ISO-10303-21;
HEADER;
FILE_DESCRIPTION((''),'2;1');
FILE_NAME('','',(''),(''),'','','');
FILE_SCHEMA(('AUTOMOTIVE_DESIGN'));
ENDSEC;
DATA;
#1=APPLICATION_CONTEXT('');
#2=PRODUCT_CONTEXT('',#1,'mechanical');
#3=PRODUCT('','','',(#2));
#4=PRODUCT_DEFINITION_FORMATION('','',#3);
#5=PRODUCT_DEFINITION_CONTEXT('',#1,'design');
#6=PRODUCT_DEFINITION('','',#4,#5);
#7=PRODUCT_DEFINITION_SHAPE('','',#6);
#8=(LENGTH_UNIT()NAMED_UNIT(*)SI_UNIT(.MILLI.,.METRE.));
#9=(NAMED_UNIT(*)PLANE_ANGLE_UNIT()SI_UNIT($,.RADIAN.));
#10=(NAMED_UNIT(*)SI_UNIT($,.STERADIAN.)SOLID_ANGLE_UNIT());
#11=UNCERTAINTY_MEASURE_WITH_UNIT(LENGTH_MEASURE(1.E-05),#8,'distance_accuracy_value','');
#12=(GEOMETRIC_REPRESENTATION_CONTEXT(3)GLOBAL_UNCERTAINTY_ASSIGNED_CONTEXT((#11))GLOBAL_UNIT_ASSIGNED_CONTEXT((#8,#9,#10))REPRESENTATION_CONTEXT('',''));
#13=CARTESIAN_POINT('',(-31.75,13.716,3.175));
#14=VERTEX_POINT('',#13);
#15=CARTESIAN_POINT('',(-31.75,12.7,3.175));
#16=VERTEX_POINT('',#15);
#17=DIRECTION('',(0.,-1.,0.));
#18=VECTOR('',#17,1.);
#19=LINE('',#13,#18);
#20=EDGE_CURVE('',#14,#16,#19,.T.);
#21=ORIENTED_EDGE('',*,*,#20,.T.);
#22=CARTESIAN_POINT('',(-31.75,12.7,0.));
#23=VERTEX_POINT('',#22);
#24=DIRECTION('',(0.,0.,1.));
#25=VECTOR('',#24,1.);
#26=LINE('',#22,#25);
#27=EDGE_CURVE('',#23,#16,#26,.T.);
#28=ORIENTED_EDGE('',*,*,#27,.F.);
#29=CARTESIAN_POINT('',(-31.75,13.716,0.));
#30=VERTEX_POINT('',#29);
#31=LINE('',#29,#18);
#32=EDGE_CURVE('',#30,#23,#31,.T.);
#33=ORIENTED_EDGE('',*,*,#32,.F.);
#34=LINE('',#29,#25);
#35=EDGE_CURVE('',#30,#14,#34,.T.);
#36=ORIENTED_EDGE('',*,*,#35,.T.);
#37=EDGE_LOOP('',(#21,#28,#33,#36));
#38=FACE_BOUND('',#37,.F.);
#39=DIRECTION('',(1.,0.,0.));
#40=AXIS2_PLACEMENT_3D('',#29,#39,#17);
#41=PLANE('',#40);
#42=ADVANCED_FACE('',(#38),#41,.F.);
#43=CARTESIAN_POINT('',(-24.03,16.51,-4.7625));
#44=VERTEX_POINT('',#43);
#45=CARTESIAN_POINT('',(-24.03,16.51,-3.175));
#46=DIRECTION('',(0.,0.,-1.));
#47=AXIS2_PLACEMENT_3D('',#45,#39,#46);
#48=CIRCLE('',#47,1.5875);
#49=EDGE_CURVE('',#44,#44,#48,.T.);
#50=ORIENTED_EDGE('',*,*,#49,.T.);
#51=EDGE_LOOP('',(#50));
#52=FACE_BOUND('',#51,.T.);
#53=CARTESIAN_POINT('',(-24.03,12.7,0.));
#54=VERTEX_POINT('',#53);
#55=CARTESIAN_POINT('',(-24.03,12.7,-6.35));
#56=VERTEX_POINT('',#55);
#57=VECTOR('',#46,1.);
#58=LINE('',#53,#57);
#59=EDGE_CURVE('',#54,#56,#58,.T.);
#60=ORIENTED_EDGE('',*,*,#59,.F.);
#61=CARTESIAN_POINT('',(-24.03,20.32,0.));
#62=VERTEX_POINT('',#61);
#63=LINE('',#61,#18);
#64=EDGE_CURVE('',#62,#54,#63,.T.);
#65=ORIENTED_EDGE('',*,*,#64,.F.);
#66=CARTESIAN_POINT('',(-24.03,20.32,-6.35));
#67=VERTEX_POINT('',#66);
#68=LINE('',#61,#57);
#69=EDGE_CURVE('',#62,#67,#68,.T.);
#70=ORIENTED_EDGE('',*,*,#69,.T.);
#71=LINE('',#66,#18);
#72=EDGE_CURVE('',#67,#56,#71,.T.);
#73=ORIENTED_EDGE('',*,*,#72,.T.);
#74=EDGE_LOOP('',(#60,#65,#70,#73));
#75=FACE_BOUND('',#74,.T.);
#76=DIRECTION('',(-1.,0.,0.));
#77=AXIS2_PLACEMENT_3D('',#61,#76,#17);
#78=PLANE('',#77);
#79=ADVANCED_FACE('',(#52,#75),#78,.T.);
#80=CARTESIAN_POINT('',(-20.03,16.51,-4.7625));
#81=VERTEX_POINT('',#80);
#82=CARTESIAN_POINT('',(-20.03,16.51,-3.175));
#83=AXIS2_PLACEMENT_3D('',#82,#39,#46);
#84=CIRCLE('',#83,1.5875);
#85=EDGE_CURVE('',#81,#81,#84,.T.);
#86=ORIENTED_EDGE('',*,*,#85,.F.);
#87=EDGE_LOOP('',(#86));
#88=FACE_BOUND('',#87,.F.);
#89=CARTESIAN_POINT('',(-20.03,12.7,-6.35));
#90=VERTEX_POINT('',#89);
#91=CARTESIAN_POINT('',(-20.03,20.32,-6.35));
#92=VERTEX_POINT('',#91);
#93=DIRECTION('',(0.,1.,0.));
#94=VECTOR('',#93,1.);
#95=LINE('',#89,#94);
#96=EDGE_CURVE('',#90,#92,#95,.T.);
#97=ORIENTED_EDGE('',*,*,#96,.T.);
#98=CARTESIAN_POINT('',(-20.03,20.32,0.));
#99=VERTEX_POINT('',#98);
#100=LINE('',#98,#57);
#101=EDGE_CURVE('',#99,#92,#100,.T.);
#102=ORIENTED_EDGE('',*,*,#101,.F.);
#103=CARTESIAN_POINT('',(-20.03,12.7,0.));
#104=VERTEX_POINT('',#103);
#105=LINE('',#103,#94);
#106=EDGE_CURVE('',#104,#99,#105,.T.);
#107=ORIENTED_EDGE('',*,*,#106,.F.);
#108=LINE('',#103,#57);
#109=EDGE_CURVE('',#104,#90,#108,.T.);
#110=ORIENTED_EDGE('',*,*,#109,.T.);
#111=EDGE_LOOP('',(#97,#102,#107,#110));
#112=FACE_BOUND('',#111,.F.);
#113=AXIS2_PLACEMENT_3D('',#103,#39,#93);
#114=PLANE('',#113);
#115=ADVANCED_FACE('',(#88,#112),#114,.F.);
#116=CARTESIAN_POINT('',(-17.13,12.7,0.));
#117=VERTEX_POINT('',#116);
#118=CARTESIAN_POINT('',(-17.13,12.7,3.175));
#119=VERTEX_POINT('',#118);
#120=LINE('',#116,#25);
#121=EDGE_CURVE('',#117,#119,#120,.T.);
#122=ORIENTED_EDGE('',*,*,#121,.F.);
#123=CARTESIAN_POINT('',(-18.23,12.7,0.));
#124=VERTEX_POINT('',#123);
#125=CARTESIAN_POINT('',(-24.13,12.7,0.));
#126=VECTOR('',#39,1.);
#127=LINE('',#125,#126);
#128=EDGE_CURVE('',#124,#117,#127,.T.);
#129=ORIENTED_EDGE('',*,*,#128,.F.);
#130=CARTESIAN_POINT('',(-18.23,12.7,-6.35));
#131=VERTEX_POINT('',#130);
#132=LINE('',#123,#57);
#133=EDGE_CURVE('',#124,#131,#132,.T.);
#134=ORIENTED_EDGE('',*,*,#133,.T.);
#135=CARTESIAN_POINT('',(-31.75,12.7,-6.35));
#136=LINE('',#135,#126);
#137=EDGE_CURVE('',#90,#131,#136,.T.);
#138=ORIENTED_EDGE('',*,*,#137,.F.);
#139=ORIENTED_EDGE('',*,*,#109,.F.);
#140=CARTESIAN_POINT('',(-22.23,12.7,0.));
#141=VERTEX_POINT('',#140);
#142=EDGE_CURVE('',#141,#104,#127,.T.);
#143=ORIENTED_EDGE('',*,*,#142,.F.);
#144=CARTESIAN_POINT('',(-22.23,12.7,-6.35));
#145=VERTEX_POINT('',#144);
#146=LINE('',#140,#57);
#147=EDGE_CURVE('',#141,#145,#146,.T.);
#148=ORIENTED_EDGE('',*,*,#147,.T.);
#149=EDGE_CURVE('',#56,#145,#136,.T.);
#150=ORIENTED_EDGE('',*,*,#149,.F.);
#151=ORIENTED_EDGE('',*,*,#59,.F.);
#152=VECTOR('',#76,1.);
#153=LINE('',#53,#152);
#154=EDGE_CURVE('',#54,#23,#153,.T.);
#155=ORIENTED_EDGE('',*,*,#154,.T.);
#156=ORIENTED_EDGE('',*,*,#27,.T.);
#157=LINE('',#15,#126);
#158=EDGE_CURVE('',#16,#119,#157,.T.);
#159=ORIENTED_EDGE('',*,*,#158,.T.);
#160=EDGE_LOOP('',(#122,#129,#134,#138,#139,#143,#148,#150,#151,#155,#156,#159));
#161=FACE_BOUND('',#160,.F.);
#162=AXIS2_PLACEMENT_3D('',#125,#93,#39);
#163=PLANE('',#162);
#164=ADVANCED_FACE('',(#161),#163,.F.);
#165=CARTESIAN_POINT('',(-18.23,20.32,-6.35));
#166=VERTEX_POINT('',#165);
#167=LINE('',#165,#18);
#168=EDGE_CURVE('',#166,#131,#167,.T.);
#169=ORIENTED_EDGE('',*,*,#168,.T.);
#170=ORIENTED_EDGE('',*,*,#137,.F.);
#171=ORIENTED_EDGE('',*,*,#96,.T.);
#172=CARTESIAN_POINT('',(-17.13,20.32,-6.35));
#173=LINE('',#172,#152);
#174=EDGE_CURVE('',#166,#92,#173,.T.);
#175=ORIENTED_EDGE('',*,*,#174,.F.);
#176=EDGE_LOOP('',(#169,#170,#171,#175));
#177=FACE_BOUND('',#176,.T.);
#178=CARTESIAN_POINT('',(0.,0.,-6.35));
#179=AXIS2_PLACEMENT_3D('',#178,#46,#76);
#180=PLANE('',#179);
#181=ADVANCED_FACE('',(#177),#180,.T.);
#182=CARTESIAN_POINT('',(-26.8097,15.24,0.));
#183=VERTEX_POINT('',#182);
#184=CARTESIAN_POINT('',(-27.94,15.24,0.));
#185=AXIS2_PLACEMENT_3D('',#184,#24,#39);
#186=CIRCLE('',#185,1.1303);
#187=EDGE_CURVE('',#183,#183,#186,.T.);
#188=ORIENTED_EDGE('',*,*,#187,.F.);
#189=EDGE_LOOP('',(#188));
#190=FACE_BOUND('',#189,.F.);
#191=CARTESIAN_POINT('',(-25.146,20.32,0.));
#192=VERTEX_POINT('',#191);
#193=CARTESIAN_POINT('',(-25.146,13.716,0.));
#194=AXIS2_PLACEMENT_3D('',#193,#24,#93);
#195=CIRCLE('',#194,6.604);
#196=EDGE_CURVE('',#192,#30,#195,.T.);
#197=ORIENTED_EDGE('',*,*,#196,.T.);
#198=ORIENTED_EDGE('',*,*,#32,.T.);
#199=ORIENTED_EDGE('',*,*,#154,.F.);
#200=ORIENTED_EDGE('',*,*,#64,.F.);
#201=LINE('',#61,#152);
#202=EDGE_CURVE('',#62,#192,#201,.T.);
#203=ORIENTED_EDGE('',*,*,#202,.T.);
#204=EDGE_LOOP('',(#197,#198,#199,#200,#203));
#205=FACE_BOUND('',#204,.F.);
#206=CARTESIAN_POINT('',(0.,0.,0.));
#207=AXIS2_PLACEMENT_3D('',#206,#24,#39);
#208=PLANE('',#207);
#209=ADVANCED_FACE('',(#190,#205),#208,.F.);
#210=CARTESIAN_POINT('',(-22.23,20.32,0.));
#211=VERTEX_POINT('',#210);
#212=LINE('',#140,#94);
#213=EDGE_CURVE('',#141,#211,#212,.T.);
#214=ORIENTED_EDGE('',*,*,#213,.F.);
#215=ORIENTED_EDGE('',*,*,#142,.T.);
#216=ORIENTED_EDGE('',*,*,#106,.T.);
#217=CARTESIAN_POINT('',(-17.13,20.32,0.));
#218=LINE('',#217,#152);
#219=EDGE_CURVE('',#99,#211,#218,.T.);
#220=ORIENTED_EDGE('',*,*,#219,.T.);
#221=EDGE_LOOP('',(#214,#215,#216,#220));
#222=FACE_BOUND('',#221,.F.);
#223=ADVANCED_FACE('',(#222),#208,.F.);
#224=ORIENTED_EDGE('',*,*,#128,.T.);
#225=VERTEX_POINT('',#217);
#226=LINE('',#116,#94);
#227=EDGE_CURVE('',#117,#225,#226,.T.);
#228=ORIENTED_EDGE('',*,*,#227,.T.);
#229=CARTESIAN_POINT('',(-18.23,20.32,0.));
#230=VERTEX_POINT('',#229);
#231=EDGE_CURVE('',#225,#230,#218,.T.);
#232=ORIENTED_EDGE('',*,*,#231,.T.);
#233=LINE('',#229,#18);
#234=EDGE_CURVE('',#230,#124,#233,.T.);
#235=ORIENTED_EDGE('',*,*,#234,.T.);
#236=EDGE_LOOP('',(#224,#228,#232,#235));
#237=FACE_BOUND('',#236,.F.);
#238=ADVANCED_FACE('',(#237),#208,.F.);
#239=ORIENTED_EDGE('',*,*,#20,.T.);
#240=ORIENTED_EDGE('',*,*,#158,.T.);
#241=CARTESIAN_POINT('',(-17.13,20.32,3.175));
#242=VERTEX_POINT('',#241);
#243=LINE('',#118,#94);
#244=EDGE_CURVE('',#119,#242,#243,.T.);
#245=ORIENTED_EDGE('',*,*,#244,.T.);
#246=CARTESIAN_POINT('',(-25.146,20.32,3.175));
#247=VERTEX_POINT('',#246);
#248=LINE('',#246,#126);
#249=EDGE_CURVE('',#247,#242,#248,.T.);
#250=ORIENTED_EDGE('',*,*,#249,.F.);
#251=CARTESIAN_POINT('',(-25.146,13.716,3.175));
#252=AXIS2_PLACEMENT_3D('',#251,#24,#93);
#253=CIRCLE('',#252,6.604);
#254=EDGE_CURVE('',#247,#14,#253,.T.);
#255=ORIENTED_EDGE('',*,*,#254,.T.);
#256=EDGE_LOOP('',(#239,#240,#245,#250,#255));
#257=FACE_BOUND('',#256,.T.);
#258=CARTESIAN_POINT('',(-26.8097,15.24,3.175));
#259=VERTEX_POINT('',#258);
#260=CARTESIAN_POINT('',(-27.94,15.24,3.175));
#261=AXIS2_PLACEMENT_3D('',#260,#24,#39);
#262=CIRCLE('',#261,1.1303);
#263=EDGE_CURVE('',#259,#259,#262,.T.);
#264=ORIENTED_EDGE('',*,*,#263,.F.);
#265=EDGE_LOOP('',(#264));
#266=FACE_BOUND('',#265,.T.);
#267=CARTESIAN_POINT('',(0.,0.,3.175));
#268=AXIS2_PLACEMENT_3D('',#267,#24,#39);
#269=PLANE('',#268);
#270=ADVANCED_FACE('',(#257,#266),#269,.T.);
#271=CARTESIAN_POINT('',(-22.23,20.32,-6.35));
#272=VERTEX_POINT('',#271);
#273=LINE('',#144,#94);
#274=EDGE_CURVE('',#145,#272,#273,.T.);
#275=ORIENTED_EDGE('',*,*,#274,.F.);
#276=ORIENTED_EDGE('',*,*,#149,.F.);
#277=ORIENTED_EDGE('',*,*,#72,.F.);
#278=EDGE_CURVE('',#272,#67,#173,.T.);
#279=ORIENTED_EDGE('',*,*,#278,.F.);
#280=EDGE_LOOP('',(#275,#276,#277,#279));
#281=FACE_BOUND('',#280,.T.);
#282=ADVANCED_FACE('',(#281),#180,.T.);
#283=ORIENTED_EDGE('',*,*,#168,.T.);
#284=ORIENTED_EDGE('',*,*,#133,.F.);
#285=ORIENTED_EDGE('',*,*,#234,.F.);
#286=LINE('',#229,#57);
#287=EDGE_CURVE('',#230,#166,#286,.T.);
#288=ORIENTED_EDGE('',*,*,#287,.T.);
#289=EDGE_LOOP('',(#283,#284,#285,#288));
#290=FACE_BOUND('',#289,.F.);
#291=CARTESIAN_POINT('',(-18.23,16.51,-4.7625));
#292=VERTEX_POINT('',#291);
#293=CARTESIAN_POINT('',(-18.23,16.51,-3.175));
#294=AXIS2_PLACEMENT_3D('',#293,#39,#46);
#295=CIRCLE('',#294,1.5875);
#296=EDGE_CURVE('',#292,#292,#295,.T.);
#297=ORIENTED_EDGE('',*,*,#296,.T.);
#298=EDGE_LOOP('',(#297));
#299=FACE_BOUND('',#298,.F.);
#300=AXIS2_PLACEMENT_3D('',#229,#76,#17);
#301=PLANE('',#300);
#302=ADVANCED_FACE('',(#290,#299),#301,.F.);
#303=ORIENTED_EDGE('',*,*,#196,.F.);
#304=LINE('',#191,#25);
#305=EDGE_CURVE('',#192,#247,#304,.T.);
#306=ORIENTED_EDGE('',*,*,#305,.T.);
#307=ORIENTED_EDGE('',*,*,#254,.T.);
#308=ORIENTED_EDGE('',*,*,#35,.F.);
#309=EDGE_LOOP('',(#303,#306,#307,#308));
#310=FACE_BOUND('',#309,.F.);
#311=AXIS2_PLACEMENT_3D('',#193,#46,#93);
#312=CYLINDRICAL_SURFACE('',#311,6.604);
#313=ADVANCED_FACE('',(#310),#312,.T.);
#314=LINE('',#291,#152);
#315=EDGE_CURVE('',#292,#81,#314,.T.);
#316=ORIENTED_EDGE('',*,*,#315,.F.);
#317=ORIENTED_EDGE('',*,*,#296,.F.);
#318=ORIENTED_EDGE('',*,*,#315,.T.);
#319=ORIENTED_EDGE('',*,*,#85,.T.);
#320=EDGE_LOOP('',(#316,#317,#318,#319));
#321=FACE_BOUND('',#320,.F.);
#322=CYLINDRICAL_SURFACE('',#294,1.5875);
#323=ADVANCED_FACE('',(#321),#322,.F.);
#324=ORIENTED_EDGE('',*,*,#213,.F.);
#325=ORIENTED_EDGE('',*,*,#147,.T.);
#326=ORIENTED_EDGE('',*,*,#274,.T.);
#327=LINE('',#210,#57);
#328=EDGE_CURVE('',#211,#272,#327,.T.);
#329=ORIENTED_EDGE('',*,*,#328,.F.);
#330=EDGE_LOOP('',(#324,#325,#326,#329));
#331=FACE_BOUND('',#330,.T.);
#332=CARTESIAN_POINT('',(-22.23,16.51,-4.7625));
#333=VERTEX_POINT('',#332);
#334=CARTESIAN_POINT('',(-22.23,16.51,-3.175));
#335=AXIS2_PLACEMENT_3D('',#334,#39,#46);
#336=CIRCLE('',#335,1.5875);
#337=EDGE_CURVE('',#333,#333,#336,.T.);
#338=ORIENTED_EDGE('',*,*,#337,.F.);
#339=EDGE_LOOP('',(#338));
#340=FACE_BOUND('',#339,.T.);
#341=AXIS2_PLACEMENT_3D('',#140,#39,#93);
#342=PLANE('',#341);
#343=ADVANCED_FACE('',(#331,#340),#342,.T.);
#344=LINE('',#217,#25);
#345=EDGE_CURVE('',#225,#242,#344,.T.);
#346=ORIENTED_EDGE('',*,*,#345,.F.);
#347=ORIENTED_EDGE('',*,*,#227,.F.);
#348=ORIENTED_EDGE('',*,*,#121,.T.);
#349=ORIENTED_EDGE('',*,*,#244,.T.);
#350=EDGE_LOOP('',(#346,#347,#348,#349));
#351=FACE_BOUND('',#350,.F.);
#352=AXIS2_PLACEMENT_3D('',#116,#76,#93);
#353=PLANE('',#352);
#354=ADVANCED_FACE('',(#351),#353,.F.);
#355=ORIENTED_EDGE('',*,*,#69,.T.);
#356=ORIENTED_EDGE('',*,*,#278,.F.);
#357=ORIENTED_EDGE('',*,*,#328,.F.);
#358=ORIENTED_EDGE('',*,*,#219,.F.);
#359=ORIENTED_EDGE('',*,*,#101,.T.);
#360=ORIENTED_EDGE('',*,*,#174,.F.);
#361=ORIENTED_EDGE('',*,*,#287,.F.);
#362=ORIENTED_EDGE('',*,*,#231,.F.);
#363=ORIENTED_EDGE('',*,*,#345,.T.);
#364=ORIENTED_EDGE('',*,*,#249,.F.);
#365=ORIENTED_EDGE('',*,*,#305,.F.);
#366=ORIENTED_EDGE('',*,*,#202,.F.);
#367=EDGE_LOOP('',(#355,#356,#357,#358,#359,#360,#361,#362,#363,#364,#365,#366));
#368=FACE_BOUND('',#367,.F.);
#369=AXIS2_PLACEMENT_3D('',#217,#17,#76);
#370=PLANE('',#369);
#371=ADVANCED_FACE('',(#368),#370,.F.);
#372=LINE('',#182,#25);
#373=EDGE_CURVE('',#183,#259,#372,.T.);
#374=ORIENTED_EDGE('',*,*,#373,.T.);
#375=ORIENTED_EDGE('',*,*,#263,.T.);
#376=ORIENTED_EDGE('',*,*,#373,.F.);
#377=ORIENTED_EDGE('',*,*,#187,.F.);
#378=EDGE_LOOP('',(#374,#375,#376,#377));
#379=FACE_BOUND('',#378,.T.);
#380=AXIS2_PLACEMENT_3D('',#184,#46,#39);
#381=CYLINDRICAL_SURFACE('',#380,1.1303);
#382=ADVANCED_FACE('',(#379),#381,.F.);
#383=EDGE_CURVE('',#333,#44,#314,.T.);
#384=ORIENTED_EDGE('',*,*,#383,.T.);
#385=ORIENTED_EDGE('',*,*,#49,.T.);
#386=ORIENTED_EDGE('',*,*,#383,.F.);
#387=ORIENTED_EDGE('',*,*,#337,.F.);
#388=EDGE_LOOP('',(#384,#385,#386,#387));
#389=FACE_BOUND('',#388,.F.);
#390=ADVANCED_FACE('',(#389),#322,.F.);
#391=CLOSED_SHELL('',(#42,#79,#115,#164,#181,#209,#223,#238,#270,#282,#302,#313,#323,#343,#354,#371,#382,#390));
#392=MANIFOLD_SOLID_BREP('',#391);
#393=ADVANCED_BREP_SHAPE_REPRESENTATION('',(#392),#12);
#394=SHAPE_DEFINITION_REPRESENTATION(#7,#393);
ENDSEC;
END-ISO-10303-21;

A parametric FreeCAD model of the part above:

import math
import FreeCAD as App
import Part
import Sketcher
from FreeCAD import Vector
Q = App.Units.Quantity


def add_polygon(sketch, points):
    """Adds a closed chain of lines whose ends are joined by coincident constraints."""
    first, n = sketch.GeometryCount, len(points)
    for a, b in zip(points, points[1:] + points[:1]):
        sketch.addGeometry(Part.LineSegment(App.Vector(*a, 0), App.Vector(*b, 0)), False)
    for i in range(n):
        sketch.addConstraint(Sketcher.Constraint("Coincident", first + i, 2, first + (i + 1) % n, 1))

doc = App.newDocument("Part")
body = doc.addObject("PartDesign::Body", "Body")

sketch1 = body.newObject("Sketcher::SketchObject", "Sketch")
sketch1.AttachmentSupport = (doc.getObject("XY_Plane"), [""])
sketch1.MapMode = "FlatFace"
sketch1.addGeometry([
    Part.LineSegment(Vector(-17.13, 20.32, 0), Vector(-25.146, 20.32, 0)),
    Part.ArcOfCircle(Part.Circle(Vector(-25.146, 13.716, 0), Vector(0, 0, 1), 6.604), math.radians(90), math.radians(180)),
    Part.LineSegment(Vector(-31.75, 13.716, 0), Vector(-31.75, 12.7, 0)),
    Part.LineSegment(Vector(-31.75, 12.7, 0), Vector(-17.13, 12.7, 0)),
    Part.LineSegment(Vector(-17.13, 12.7, 0), Vector(-17.13, 20.32, 0)),
    Part.Circle(Vector(-27.94, 15.24, 0), Vector(0, 0, 1), 1.1303),
], False)
sketch1.addConstraint([
    Sketcher.Constraint("Tangent", 0, 2, 1, 1),
    Sketcher.Constraint("Tangent", 1, 2, 2, 1),
    Sketcher.Constraint("Coincident", 2, 2, 3, 1),
    Sketcher.Constraint("Coincident", 3, 2, 4, 1),
    Sketcher.Constraint("Coincident", 4, 2, 0, 1),
    Sketcher.Constraint("Horizontal", 0),
    Sketcher.Constraint("Vertical", 2),
    Sketcher.Constraint("Horizontal", 3),
    Sketcher.Constraint("Vertical", 4),
    Sketcher.Constraint("Radius", 1, Q("0.26 in")),
    Sketcher.Constraint("Diameter", 5, Q("0.089 in")),
    Sketcher.Constraint("DistanceY", 4, 1, 4, 2, Q("0.3 in")),
    Sketcher.Constraint("DistanceX", 5, 3, -1, 1, Q("1.1 in")),
    Sketcher.Constraint("DistanceY", -1, 1, 5, 3, Q("0.6 in")),
    Sketcher.Constraint("DistanceY", -1, 1, 0, 2, Q("0.8 in")),
    Sketcher.Constraint("DistanceX", 1, 3, -1, 1, Q("0.99 in")),
    Sketcher.Constraint("DistanceX", 0, 2, 0, 1, Q("0.3156 in")),
])
pad1 = body.newObject("PartDesign::Pad", "Pad")
pad1.Profile = sketch1
pad1.Length = Q("0.125 in")

sketch2 = body.newObject("Sketcher::SketchObject", "Sketch001")
sketch2.AttachmentSupport = (doc.getObject("XY_Plane"), [""])
sketch2.MapMode = "FlatFace"
add_polygon(sketch2, [(-20.03, 20.32), (-18.23, 20.32), (-18.23, 12.7), (-20.03, 12.7)])
add_polygon(sketch2, [(-24.03, 20.32), (-22.23, 20.32), (-22.23, 12.7), (-24.03, 12.7)])
sketch2.addConstraint([
    Sketcher.Constraint("Horizontal", 0),
    Sketcher.Constraint("Vertical", 1),
    Sketcher.Constraint("Horizontal", 2),
    Sketcher.Constraint("Vertical", 3),
    Sketcher.Constraint("Horizontal", 4),
    Sketcher.Constraint("Vertical", 5),
    Sketcher.Constraint("Horizontal", 6),
    Sketcher.Constraint("Vertical", 7),
    Sketcher.Constraint("Horizontal", 3, 2, 4, 2),
    Sketcher.Constraint("Horizontal", 2, 2, 5, 2),
    Sketcher.Constraint("Equal", 2, 4),
    Sketcher.Constraint("DistanceY", 1, 2, 1, 1, Q("0.3 in")),
    Sketcher.Constraint("DistanceY", -1, 1, 0, 2, Q("0.8 in")),
    Sketcher.Constraint("DistanceX", 0, 1, 0, 2, 1.8),
    Sketcher.Constraint("DistanceX", 4, 2, -1, 1, Q("0.8752 in")),
    Sketcher.Constraint("DistanceX", 0, 2, -1, 1, 18.23),
])
pad2 = body.newObject("PartDesign::Pad", "Pad001")
pad2.Profile = sketch2
pad2.Length = Q("0.25 in")
pad2.Reversed = True

sketch3 = body.newObject("Sketcher::SketchObject", "Sketch002")
sketch3.AttachmentSupport = (doc.getObject("YZ_Plane"), [""])
sketch3.MapMode = "FlatFace"
sketch3.AttachmentOffset = App.Placement(Vector(0, 0, -18.23), App.Rotation())
sketch3.addGeometry(Part.Circle(Vector(16.51, -3.175, 0), Vector(0, 0, 1), 1.5875), False)
sketch3.addConstraint([
    Sketcher.Constraint("Diameter", 0, Q("0.125 in")),
    Sketcher.Constraint("DistanceY", 0, 3, -1, 1, Q("0.125 in")),
    Sketcher.Constraint("DistanceX", -1, 1, 0, 3, Q("0.65 in")),
])
pocket1 = body.newObject("PartDesign::Pocket", "Pocket")
pocket1.Profile = sketch3
pocket1.Length = 9.75

doc.recompute()
